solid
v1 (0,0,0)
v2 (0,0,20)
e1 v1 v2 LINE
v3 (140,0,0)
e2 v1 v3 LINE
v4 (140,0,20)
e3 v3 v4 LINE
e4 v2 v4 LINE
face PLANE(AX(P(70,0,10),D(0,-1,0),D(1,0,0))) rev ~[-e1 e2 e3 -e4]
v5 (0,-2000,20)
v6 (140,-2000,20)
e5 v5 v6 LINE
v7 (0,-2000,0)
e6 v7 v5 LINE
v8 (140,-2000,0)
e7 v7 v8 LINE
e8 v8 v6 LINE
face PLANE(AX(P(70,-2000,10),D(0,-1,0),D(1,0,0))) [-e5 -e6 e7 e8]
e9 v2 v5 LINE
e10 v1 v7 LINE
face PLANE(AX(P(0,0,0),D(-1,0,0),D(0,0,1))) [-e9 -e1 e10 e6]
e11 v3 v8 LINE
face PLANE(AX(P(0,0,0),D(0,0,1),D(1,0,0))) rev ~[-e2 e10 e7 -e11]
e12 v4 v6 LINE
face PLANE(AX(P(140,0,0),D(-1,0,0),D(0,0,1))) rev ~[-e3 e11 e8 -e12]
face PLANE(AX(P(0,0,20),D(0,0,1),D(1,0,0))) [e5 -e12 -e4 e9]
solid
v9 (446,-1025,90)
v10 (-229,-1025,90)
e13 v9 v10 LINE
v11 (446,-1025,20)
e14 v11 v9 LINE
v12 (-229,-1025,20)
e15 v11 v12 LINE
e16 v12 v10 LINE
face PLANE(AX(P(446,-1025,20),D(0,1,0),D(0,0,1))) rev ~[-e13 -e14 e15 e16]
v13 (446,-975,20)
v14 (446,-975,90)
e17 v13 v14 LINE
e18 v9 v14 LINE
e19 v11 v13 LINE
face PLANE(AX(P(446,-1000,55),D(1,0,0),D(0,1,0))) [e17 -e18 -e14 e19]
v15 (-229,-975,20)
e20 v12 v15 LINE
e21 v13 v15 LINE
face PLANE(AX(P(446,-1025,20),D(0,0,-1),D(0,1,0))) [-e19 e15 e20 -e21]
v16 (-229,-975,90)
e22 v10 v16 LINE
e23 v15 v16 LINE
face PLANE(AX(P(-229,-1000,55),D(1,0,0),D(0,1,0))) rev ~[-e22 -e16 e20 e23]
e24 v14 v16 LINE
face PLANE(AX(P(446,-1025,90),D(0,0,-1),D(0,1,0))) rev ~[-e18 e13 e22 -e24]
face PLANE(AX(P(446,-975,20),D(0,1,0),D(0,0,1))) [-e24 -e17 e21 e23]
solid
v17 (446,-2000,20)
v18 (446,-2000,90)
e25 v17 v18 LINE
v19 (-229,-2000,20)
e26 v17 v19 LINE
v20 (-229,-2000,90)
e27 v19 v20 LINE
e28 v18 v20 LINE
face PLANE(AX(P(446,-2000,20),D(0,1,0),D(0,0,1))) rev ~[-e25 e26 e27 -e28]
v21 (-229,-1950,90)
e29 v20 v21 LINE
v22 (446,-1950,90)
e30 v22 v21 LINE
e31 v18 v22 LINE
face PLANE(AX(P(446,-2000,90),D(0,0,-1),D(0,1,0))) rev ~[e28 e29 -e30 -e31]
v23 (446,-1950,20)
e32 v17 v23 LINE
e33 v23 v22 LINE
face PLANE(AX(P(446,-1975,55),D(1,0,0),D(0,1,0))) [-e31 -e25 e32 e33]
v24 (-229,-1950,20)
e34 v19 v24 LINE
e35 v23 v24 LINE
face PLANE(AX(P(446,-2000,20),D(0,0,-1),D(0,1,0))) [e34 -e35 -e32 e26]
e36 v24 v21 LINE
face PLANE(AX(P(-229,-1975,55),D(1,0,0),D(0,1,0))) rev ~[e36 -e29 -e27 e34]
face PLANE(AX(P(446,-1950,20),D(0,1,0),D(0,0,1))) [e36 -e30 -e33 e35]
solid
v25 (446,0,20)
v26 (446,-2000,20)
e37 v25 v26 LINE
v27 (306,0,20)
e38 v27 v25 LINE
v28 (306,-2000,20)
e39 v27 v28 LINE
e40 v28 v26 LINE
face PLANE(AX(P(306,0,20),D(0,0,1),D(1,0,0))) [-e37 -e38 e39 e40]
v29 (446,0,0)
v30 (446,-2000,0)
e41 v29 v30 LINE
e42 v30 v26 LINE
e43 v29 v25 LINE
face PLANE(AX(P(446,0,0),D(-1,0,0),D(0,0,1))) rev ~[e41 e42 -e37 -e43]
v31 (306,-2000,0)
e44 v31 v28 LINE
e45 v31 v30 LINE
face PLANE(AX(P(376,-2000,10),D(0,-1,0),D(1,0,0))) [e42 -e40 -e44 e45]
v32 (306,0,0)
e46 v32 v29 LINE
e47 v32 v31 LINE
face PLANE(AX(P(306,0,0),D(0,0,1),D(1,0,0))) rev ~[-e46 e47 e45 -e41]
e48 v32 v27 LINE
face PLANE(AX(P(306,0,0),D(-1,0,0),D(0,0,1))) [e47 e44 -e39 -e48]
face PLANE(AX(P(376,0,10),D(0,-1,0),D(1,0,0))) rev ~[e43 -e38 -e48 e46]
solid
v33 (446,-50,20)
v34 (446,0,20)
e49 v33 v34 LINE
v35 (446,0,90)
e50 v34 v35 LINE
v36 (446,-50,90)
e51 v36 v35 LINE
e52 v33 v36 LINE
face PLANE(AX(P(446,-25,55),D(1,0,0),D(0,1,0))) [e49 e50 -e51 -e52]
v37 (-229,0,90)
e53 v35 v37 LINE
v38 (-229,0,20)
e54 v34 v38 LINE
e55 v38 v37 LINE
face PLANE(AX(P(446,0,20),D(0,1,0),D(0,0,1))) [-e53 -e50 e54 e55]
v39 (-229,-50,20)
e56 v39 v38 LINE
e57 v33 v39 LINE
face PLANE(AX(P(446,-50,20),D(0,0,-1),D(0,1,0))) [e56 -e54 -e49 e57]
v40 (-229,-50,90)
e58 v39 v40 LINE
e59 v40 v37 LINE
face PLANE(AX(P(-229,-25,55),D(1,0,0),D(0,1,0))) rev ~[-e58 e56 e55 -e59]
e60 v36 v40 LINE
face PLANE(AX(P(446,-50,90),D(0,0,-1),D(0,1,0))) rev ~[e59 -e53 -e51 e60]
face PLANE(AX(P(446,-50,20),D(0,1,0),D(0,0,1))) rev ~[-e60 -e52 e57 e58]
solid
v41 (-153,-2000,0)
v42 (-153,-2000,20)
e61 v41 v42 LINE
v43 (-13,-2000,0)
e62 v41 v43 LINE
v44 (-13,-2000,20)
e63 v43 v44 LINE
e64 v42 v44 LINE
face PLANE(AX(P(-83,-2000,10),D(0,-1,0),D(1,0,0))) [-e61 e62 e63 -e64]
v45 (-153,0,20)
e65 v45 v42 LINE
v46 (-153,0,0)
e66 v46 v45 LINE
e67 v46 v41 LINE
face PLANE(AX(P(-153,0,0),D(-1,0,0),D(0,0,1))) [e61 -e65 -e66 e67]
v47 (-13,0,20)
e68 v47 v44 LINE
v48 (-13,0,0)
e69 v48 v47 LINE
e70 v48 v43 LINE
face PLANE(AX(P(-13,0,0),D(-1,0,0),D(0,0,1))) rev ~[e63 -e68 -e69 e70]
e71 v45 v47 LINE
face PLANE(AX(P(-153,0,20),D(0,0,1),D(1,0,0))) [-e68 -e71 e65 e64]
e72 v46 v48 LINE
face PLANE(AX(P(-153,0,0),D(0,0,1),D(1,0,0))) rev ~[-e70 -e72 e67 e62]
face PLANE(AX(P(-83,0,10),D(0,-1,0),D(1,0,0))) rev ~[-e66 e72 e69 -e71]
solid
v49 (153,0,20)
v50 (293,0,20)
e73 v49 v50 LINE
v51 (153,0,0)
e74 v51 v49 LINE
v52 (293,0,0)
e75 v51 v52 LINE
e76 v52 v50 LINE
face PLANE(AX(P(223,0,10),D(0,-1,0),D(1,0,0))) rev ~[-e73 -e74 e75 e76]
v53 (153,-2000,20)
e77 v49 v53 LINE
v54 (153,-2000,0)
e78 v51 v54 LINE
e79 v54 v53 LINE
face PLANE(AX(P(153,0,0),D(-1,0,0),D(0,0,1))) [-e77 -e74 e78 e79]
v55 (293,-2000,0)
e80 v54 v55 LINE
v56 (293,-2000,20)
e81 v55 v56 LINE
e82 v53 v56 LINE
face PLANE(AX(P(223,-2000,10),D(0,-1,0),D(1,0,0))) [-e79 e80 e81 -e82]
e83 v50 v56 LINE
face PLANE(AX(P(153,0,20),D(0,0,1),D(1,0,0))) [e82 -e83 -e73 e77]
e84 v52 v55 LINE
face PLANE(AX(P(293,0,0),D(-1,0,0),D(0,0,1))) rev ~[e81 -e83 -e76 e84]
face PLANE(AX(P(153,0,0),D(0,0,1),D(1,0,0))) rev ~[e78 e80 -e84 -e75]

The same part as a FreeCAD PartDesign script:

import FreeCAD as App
import Part
import Sketcher
Q = App.Units.Quantity

doc = App.newDocument("Part")
body = doc.addObject("PartDesign::Body", "Body")
body.AllowCompound = True

# Sketch on XZ plane
sketch1 = body.newObject("Sketcher::SketchObject", "Sketch")
sketch1.AttachmentSupport = (doc.getObject("XZ_Plane"), [""])
sketch1.MapMode = "FlatFace"
sketch1.addGeometry(Part.LineSegment(App.Vector(0, 20, 0), App.Vector(0, 0, 0)), False)
sketch1.addGeometry(Part.LineSegment(App.Vector(0, 0, 0), App.Vector(140, 0, 0)), False)
sketch1.addGeometry(Part.LineSegment(App.Vector(140, 0, 0), App.Vector(140, 20, 0)), False)
sketch1.addGeometry(Part.LineSegment(App.Vector(140, 20, 0), App.Vector(0, 20, 0)), False)
sketch1.addGeometry(Part.LineSegment(App.Vector(153, 20, 0), App.Vector(153, 0, 0)), False)
sketch1.addGeometry(Part.LineSegment(App.Vector(153, 0, 0), App.Vector(293, 0, 0)), False)
sketch1.addGeometry(Part.LineSegment(App.Vector(293, 0, 0), App.Vector(293, 20, 0)), False)
sketch1.addGeometry(Part.LineSegment(App.Vector(293, 20, 0), App.Vector(153, 20, 0)), False)
sketch1.addGeometry(Part.LineSegment(App.Vector(306, 20, 0), App.Vector(306, 0, 0)), False)
sketch1.addGeometry(Part.LineSegment(App.Vector(306, 0, 0), App.Vector(446, 0, 0)), False)
sketch1.addGeometry(Part.LineSegment(App.Vector(446, 0, 0), App.Vector(446, 20, 0)), False)
sketch1.addGeometry(Part.LineSegment(App.Vector(446, 20, 0), App.Vector(306, 20, 0)), False)
sketch1.addGeometry(Part.LineSegment(App.Vector(-153, 20, 0), App.Vector(-153, 0, 0)), False)
sketch1.addGeometry(Part.LineSegment(App.Vector(-153, 0, 0), App.Vector(-13, 0, 0)), False)
sketch1.addGeometry(Part.LineSegment(App.Vector(-13, 0, 0), App.Vector(-13, 20, 0)), False)
sketch1.addGeometry(Part.LineSegment(App.Vector(-13, 20, 0), App.Vector(-153, 20, 0)), False)
sketch1.addConstraint(Sketcher.Constraint("Coincident", 0, 2, 1, 1))
sketch1.addConstraint(Sketcher.Constraint("Coincident", 1, 2, 2, 1))
sketch1.addConstraint(Sketcher.Constraint("Coincident", 2, 2, 3, 1))
sketch1.addConstraint(Sketcher.Constraint("Coincident", 3, 2, 0, 1))
sketch1.addConstraint(Sketcher.Constraint("Coincident", 4, 2, 5, 1))
sketch1.addConstraint(Sketcher.Constraint("Coincident", 5, 2, 6, 1))
sketch1.addConstraint(Sketcher.Constraint("Coincident", 6, 2, 7, 1))
sketch1.addConstraint(Sketcher.Constraint("Coincident", 7, 2, 4, 1))
sketch1.addConstraint(Sketcher.Constraint("Coincident", 8, 2, 9, 1))
sketch1.addConstraint(Sketcher.Constraint("Coincident", 9, 2, 10, 1))
sketch1.addConstraint(Sketcher.Constraint("Coincident", 10, 2, 11, 1))
sketch1.addConstraint(Sketcher.Constraint("Coincident", 11, 2, 8, 1))
sketch1.addConstraint(Sketcher.Constraint("Coincident", 12, 2, 13, 1))
sketch1.addConstraint(Sketcher.Constraint("Coincident", 13, 2, 14, 1))
sketch1.addConstraint(Sketcher.Constraint("Coincident", 14, 2, 15, 1))
sketch1.addConstraint(Sketcher.Constraint("Coincident", 15, 2, 12, 1))
sketch1.addConstraint(Sketcher.Constraint("Vertical", 0))
sketch1.addConstraint(Sketcher.Constraint("Horizontal", 1))
sketch1.addConstraint(Sketcher.Constraint("Vertical", 2))
sketch1.addConstraint(Sketcher.Constraint("Horizontal", 3))
sketch1.addConstraint(Sketcher.Constraint("Vertical", 4))
sketch1.addConstraint(Sketcher.Constraint("Horizontal", 5))
sketch1.addConstraint(Sketcher.Constraint("Vertical", 6))
sketch1.addConstraint(Sketcher.Constraint("Horizontal", 7))
sketch1.addConstraint(Sketcher.Constraint("Vertical", 8))
sketch1.addConstraint(Sketcher.Constraint("Horizontal", 9))
sketch1.addConstraint(Sketcher.Constraint("Vertical", 10))
sketch1.addConstraint(Sketcher.Constraint("Horizontal", 11))
sketch1.addConstraint(Sketcher.Constraint("Vertical", 12))
sketch1.addConstraint(Sketcher.Constraint("Horizontal", 13))
sketch1.addConstraint(Sketcher.Constraint("Vertical", 14))
sketch1.addConstraint(Sketcher.Constraint("Horizontal", 15))
sketch1.addConstraint(Sketcher.Constraint("Coincident", 0, 2, -1, 1))
sketch1.addConstraint(Sketcher.Constraint("Symmetric", 4, 2, 12, 2, -1, 1))
sketch1.addConstraint(Sketcher.Constraint("PointOnObject", 4, 2, -1))
sketch1.addConstraint(Sketcher.Constraint("PointOnObject", 8, 2, -1))
sketch1.addConstraint(Sketcher.Constraint("Horizontal", 3, 2, 6, 2))
sketch1.addConstraint(Sketcher.Constraint("Horizontal", 7, 2, 10, 2))
sketch1.addConstraint(Sketcher.Constraint("Horizontal", 11, 2, 14, 2))
sketch1.addConstraint(Sketcher.Constraint("Equal", 3, 5))
sketch1.addConstraint(Sketcher.Constraint("Equal", 7, 9))
sketch1.addConstraint(Sketcher.Constraint("Equal", 11, 13))
sketch1.addConstraint(Sketcher.Constraint("DistanceX", 1, 1, 1, 2, Q("140 mm")))
sketch1.addConstraint(Sketcher.Constraint("DistanceY", 0, 2, 0, 1, Q("20 mm")))
sketch1.addConstraint(Sketcher.Constraint("DistanceX", -1, 1, 4, 2, Q("153 mm")))
sketch1.addConstraint(Sketcher.Constraint("DistanceX", -1, 1, 8, 2, Q("306 mm")))
pad1 = body.newObject("PartDesign::Pad", "Pad")
pad1.Profile = sketch1
pad1.Length = 2000
body2 = doc.addObject("PartDesign::Body", "Body001")
body2.AllowCompound = True

# Sketch on YZ plane
sketch2 = body2.newObject("Sketcher::SketchObject", "Sketch001")
sketch2.AttachmentSupport = (doc.getObject("YZ_Plane001"), [""])
sketch2.MapMode = "FlatFace"
sketch2.AttachmentOffset = App.Placement(App.Vector(0, 0, 446), App.Rotation())
sketch2.addGeometry(Part.LineSegment(App.Vector(-2000, 90, 0), App.Vector(-2000, 20, 0)), False)
sketch2.addGeometry(Part.LineSegment(App.Vector(-2000, 20, 0), App.Vector(-1950, 20, 0)), False)
sketch2.addGeometry(Part.LineSegment(App.Vector(-1950, 20, 0), App.Vector(-1950, 90, 0)), False)
sketch2.addGeometry(Part.LineSegment(App.Vector(-1950, 90, 0), App.Vector(-2000, 90, 0)), False)
sketch2.addGeometry(Part.LineSegment(App.Vector(-50, 90, 0), App.Vector(-50, 20, 0)), False)
sketch2.addGeometry(Part.LineSegment(App.Vector(-50, 20, 0), App.Vector(0, 20, 0)), False)
sketch2.addGeometry(Part.LineSegment(App.Vector(0, 20, 0), App.Vector(0, 90, 0)), False)
sketch2.addGeometry(Part.LineSegment(App.Vector(0, 90, 0), App.Vector(-50, 90, 0)), False)
sketch2.addGeometry(Part.LineSegment(App.Vector(-1025, 90, 0), App.Vector(-1025, 20, 0)), False)
sketch2.addGeometry(Part.LineSegment(App.Vector(-1025, 20, 0), App.Vector(-975, 20, 0)), False)
sketch2.addGeometry(Part.LineSegment(App.Vector(-975, 20, 0), App.Vector(-975, 90, 0)), False)
sketch2.addGeometry(Part.LineSegment(App.Vector(-975, 90, 0), App.Vector(-1025, 90, 0)), False)
sketch2.addConstraint(Sketcher.Constraint("Coincident", 0, 2, 1, 1))
sketch2.addConstraint(Sketcher.Constraint("Coincident", 1, 2, 2, 1))
sketch2.addConstraint(Sketcher.Constraint("Coincident", 2, 2, 3, 1))
sketch2.addConstraint(Sketcher.Constraint("Coincident", 3, 2, 0, 1))
sketch2.addConstraint(Sketcher.Constraint("Coincident", 4, 2, 5, 1))
sketch2.addConstraint(Sketcher.Constraint("Coincident", 5, 2, 6, 1))
sketch2.addConstraint(Sketcher.Constraint("Coincident", 6, 2, 7, 1))
sketch2.addConstraint(Sketcher.Constraint("Coincident", 7, 2, 4, 1))
sketch2.addConstraint(Sketcher.Constraint("Coincident", 8, 2, 9, 1))
sketch2.addConstraint(Sketcher.Constraint("Coincident", 9, 2, 10, 1))
sketch2.addConstraint(Sketcher.Constraint("Coincident", 10, 2, 11, 1))
sketch2.addConstraint(Sketcher.Constraint("Coincident", 11, 2, 8, 1))
sketch2.addConstraint(Sketcher.Constraint("Vertical", 0))
sketch2.addConstraint(Sketcher.Constraint("Horizontal", 1))
sketch2.addConstraint(Sketcher.Constraint("Vertical", 2))
sketch2.addConstraint(Sketcher.Constraint("Horizontal", 3))
sketch2.addConstraint(Sketcher.Constraint("Vertical", 4))
sketch2.addConstraint(Sketcher.Constraint("Horizontal", 5))
sketch2.addConstraint(Sketcher.Constraint("Vertical", 6))
sketch2.addConstraint(Sketcher.Constraint("Horizontal", 7))
sketch2.addConstraint(Sketcher.Constraint("Vertical", 8))
sketch2.addConstraint(Sketcher.Constraint("Horizontal", 9))
sketch2.addConstraint(Sketcher.Constraint("Vertical", 10))
sketch2.addConstraint(Sketcher.Constraint("Horizontal", 11))
sketch2.addConstraint(Sketcher.Constraint("PointOnObject", 5, 2, -2))
sketch2.addConstraint(Sketcher.Constraint("Horizontal", 1, 2, 4, 2))
sketch2.addConstraint(Sketcher.Constraint("Horizontal", 3, 2, 6, 2))
sketch2.addConstraint(Sketcher.Constraint("Horizontal", 5, 2, 8, 2))
sketch2.addConstraint(Sketcher.Constraint("Horizontal", 7, 2, 10, 2))
sketch2.addConstraint(Sketcher.Constraint("Equal", 3, 5))
sketch2.addConstraint(Sketcher.Constraint("Equal", 7, 9))
sketch2.addConstraint(Sketcher.Constraint("DistanceX", 1, 1, 1, 2, Q("50 mm")))
sketch2.addConstraint(Sketcher.Constraint("DistanceY", 0, 2, 0, 1, Q("70 mm")))
sketch2.addConstraint(Sketcher.Constraint("DistanceX", 0, 2, -1, 1, Q("2000 mm")))
sketch2.addConstraint(Sketcher.Constraint("DistanceY", -1, 1, 0, 2, Q("20 mm")))
sketch2.addConstraint(Sketcher.Constraint("DistanceX", 8, 2, -1, 1, Q("1025 mm")))
pad2 = body2.newObject("PartDesign::Pad", "Pad001")
pad2.Profile = sketch2
pad2.Length = 675
pad2.Reversed = True

doc.recompute()
